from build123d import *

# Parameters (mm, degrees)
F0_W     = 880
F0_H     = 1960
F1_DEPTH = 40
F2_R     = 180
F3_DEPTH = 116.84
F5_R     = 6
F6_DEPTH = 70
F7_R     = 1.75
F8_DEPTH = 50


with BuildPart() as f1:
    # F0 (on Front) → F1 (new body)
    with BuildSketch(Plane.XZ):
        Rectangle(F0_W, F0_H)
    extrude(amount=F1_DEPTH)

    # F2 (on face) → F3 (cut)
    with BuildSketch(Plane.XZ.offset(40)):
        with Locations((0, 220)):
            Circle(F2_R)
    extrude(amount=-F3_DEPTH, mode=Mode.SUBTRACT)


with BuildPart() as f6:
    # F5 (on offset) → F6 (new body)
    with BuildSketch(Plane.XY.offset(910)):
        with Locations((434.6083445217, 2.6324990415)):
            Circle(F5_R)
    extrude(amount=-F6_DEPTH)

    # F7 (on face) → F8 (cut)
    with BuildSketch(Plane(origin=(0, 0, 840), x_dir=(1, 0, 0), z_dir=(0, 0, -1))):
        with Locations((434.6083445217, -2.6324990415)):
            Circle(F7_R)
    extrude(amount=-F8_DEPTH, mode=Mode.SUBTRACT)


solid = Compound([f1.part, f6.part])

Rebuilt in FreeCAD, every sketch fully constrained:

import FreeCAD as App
import Part
import Sketcher

V = App.Vector
Q = App.Units.Quantity

doc = App.newDocument("Part")
body = doc.addObject("PartDesign::Body", "Body")

sketch1 = body.newObject("Sketcher::SketchObject", "Sketch")
sketch1.AttachmentSupport = (doc.getObject("XZ_Plane"), [""])
sketch1.MapMode = "FlatFace"
sketch1.addGeometry(Part.LineSegment(V(-440, 980, 0), V(-440, -980, 0)), False)
sketch1.addGeometry(Part.LineSegment(V(-440, -980, 0), V(440, -980, 0)), False)
sketch1.addGeometry(Part.LineSegment(V(440, -980, 0), V(440, 980, 0)), False)
sketch1.addGeometry(Part.LineSegment(V(440, 980, 0), V(-440, 980, 0)), False)
sketch1.addConstraint(Sketcher.Constraint("Coincident", 0, 2, 1, 1))
sketch1.addConstraint(Sketcher.Constraint("Coincident", 1, 2, 2, 1))
sketch1.addConstraint(Sketcher.Constraint("Coincident", 2, 2, 3, 1))
sketch1.addConstraint(Sketcher.Constraint("Coincident", 3, 2, 0, 1))
sketch1.addConstraint(Sketcher.Constraint("Vertical", 0))
sketch1.addConstraint(Sketcher.Constraint("Horizontal", 1))
sketch1.addConstraint(Sketcher.Constraint("Vertical", 2))
sketch1.addConstraint(Sketcher.Constraint("Horizontal", 3))
sketch1.addConstraint(Sketcher.Constraint("Symmetric", 0, 2, 2, 2, -1, 1))
sketch1.addConstraint(Sketcher.Constraint("DistanceX", 1, 1, 1, 2, Q("880 mm")))
sketch1.addConstraint(Sketcher.Constraint("DistanceY", 0, 2, 0, 1, Q("1960 mm")))
pad1 = body.newObject("PartDesign::Pad", "Pad")
pad1.Profile = sketch1
pad1.Length = 40

sketch2 = body.newObject("Sketcher::SketchObject", "Sketch001")
sketch2.AttachmentSupport = (doc.getObject("XZ_Plane"), [""])
sketch2.MapMode = "FlatFace"
sketch2.AttachmentOffset = App.Placement(V(0, 0, 40), App.Rotation())
sketch2.addGeometry(Part.Circle(V(0, 220, 0), V(0, 0, 1), 180), False)
sketch2.addConstraint(Sketcher.Constraint("PointOnObject", 0, 3, -2))
sketch2.addConstraint(Sketcher.Constraint("Diameter", 0, Q("360 mm")))
sketch2.addConstraint(Sketcher.Constraint("DistanceY", -1, 1, 0, 3, Q("220 mm")))
pocket1 = body.newObject("PartDesign::Pocket", "Pocket")
pocket1.Profile = sketch2
pocket1.Length = 116.84
body2 = doc.addObject("PartDesign::Body", "Body001")

sketch3 = body2.newObject("Sketcher::SketchObject", "Sketch002")
sketch3.AttachmentSupport = (doc.getObject("XY_Plane001"), [""])
sketch3.MapMode = "FlatFace"
sketch3.AttachmentOffset = App.Placement(V(0, 0, 910), App.Rotation())
sketch3.addGeometry(Part.Circle(V(435, 3, 0), V(0, 0, 1), 6), False)
sketch3.addConstraint(Sketcher.Constraint("Diameter", 0, Q("12 mm")))
sketch3.addConstraint(Sketcher.Constraint("DistanceY", -1, 1, 0, 3, Q("2.632499 mm")))
sketch3.addConstraint(Sketcher.Constraint("DistanceX", -1, 1, 0, 3, Q("434.608345 mm")))
pad2 = body2.newObject("PartDesign::Pad", "Pad001")
pad2.Profile = sketch3
pad2.Length = 70
pad2.Reversed = True

sketch4 = body2.newObject("Sketcher::SketchObject", "Sketch003")
sketch4.AttachmentSupport = (doc.getObject("XY_Plane001"), [""])
sketch4.MapMode = "FlatFace"
sketch4.AttachmentOffset = App.Placement(V(0, 0, 840), App.Rotation())
sketch4.addGeometry(Part.Circle(V(434.6, 2.6, 0), V(0, 0, 1), 1.8), False)
sketch4.addConstraint(Sketcher.Constraint("Diameter", 0, Q("3.5 mm")))
sketch4.addConstraint(Sketcher.Constraint("DistanceY", -1, 1, 0, 3, Q("2.632499 mm")))
sketch4.addConstraint(Sketcher.Constraint("DistanceX", -1, 1, 0, 3, Q("434.608345 mm")))
pocket2 = body2.newObject("PartDesign::Pocket", "Pocket001")
pocket2.Profile = sketch4
pocket2.Length = 50
pocket2.Reversed = True

doc.recompute()
